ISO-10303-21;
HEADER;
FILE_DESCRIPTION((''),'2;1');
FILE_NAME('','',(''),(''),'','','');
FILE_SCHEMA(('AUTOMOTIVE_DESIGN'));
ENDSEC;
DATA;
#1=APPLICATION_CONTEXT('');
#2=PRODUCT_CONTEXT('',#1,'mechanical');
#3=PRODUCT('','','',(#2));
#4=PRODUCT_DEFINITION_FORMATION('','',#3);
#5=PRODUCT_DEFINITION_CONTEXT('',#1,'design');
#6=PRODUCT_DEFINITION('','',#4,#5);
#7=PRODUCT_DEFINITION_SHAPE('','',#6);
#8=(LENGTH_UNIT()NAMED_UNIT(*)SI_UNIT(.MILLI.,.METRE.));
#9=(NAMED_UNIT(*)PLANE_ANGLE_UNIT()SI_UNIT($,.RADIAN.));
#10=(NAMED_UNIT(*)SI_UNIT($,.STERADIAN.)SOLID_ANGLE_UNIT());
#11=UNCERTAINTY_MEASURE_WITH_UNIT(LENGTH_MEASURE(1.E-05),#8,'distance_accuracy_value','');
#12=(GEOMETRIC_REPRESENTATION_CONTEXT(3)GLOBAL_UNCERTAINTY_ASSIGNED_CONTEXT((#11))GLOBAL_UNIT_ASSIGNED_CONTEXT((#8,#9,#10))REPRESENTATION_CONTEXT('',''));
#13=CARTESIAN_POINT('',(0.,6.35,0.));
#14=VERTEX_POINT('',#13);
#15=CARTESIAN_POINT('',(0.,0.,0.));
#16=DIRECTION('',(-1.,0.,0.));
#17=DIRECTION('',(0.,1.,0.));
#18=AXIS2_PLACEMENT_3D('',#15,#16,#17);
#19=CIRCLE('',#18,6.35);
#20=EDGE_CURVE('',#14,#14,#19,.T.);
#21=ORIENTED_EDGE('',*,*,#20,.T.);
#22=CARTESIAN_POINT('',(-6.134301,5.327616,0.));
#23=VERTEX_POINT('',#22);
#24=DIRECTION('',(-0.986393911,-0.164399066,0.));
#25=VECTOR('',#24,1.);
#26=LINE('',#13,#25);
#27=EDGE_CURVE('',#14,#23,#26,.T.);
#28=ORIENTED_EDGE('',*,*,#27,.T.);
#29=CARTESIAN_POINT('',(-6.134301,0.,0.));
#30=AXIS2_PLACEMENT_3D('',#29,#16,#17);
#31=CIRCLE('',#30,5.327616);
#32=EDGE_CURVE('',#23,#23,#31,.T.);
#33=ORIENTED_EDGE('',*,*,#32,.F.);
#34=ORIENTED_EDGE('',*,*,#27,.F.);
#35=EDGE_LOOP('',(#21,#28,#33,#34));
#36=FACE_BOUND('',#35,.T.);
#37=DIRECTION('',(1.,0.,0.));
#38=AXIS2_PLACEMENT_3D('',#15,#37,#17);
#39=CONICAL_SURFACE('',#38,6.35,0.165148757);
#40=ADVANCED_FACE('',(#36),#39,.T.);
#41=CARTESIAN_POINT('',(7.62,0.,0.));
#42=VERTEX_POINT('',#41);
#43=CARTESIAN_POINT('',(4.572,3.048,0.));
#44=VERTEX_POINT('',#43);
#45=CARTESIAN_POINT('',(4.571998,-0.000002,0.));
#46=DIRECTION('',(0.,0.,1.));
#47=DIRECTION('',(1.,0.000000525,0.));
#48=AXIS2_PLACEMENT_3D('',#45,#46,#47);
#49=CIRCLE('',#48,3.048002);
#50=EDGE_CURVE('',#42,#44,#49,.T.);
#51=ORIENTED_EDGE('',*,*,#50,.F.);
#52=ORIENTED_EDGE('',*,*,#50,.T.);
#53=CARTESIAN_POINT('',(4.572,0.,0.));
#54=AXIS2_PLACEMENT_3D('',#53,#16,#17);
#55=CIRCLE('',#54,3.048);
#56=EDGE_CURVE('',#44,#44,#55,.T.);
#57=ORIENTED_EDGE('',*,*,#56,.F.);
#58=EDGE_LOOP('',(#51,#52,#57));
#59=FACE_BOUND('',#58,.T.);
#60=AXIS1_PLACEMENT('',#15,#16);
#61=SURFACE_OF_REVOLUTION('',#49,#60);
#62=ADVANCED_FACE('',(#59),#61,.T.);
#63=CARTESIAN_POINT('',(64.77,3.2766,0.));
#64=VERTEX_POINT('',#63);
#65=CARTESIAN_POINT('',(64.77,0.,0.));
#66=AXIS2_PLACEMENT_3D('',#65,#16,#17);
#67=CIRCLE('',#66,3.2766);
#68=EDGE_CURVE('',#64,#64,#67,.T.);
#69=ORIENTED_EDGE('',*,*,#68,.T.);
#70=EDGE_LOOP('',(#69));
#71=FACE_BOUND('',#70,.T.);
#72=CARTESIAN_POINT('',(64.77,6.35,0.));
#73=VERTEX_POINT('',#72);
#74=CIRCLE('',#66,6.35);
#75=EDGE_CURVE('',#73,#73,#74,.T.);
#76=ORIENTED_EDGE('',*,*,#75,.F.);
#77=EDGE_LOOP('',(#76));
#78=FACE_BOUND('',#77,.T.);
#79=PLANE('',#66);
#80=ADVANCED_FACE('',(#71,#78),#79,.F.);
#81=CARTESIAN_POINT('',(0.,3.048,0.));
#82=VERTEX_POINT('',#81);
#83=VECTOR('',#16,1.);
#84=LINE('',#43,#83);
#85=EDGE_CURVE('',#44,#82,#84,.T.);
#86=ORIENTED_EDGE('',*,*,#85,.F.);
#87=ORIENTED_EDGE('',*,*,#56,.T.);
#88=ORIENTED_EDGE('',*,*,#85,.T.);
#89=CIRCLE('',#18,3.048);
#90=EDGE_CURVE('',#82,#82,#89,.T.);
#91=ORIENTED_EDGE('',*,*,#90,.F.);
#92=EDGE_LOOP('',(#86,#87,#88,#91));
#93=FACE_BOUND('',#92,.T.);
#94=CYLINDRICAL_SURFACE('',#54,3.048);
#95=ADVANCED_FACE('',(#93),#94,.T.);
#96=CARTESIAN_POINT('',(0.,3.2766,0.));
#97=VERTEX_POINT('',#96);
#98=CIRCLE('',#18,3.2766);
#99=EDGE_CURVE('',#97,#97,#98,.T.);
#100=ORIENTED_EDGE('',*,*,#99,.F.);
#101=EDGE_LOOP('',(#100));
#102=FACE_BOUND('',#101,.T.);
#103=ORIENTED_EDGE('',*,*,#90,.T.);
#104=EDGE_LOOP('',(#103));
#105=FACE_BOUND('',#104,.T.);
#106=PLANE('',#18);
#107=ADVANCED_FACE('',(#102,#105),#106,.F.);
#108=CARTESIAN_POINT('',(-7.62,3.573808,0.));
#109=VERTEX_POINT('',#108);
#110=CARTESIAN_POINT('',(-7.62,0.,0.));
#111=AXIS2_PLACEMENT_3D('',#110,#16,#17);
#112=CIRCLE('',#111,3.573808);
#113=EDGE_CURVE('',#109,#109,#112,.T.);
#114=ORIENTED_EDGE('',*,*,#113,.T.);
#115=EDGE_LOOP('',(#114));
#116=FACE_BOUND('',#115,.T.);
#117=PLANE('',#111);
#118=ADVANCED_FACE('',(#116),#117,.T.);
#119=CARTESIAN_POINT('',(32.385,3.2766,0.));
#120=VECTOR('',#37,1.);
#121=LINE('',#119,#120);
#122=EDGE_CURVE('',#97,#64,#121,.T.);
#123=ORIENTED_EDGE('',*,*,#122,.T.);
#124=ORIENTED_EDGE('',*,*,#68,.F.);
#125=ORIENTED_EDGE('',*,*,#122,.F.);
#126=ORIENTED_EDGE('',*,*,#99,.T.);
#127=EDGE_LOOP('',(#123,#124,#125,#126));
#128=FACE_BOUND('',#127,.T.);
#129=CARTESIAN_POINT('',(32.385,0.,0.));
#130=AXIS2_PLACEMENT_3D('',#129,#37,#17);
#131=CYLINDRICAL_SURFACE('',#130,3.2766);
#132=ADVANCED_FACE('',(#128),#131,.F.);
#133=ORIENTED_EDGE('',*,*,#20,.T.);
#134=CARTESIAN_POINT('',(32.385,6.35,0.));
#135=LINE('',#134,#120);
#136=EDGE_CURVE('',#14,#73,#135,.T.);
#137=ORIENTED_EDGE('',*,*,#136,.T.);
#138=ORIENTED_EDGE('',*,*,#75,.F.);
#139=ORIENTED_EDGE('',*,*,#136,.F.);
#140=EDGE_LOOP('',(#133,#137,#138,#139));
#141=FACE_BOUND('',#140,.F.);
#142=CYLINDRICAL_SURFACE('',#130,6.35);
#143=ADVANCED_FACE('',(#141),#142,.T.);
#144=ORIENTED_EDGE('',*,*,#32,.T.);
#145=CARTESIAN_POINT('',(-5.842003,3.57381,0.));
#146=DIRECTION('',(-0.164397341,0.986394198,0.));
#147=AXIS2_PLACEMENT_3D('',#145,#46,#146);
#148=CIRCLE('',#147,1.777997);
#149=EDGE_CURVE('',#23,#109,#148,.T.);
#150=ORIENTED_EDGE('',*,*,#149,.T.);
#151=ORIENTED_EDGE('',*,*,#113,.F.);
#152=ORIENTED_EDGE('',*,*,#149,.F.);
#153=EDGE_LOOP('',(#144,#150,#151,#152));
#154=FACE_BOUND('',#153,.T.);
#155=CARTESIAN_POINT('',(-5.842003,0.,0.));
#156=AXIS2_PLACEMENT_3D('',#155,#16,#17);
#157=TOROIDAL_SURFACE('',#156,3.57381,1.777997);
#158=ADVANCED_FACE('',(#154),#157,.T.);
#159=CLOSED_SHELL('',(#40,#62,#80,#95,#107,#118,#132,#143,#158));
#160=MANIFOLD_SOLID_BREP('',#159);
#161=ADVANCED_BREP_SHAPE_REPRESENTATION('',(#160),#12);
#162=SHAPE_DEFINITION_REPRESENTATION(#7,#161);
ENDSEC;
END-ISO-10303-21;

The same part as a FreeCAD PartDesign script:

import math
import FreeCAD as App
import Part
import Sketcher
from FreeCAD import Vector
Q = App.Units.Quantity

doc = App.newDocument("Part")
body = doc.addObject("PartDesign::Body", "Body")

# Sketch on XY plane
sketch1 = body.newObject("Sketcher::SketchObject", "Sketch")
sketch1.AttachmentSupport = (doc.getObject("XY_Plane"), [""])
sketch1.MapMode = "FlatFace"
sketch1.addGeometry([
    Part.LineSegment(Vector(0, 6.3, 0), Vector(0, 3.3, 0)),
    Part.LineSegment(Vector(0, 3.3, 0), Vector(64.8, 3.3, 0)),
    Part.LineSegment(Vector(64.8, 3.3, 0), Vector(64.8, 6.3, 0)),
    Part.LineSegment(Vector(64.8, 6.3, 0), Vector(0, 6.3, 0)),
], False)
sketch1.addConstraint([
    Sketcher.Constraint("Coincident", 0, 2, 1, 1),
    Sketcher.Constraint("Coincident", 1, 2, 2, 1),
    Sketcher.Constraint("Coincident", 2, 2, 3, 1),
    Sketcher.Constraint("Coincident", 3, 2, 0, 1),
    Sketcher.Constraint("Vertical", 0),
    Sketcher.Constraint("Horizontal", 1),
    Sketcher.Constraint("Vertical", 2),
    Sketcher.Constraint("Horizontal", 3),
    Sketcher.Constraint("PointOnObject", 0, 2, -2),
    Sketcher.Constraint("DistanceX", 1, 1, 1, 2, Q("2.55 in")),
    Sketcher.Constraint("DistanceY", 0, 2, 0, 1, Q("0.121 in")),
    Sketcher.Constraint("DistanceY", -1, 1, 2, 2, Q("0.25 in")),
])
revolution = body.newObject("PartDesign::Revolution", "Revolution")
revolution.Profile = sketch1
revolution.ReferenceAxis = (sketch1, ["H_Axis"])
revolution.Angle = 360

# Sketch on XY plane
sketch2 = body.newObject("Sketcher::SketchObject", "Sketch001")
sketch2.AttachmentSupport = (doc.getObject("XY_Plane"), [""])
sketch2.MapMode = "FlatFace"
sketch2.addGeometry([
    Part.LineSegment(Vector(4.6, 3, 0), Vector(0, 3, 0)),  # 0
    Part.LineSegment(Vector(0, 3, 0), Vector(0, 6.3, 0)),  # 1
    Part.LineSegment(Vector(0, 6.3, 0), Vector(-6.1, 5.3, 0)),  # 2
    Part.ArcOfCircle(Part.Circle(Vector(-5.8, 3.6, 0), Vector(0, 0, 1), 1.8), math.radians(99), math.radians(180)),  # 3
    Part.LineSegment(Vector(-7.6, 3.6, 0), Vector(-7.6, 0, 0)),  # 4
    Part.LineSegment(Vector(-7.6, 0, 0), Vector(7.6, 0, 0)),  # 5
    Part.ArcOfCircle(Part.Circle(Vector(4.6, 0, 0), Vector(0, 0, 1), 3), math.radians(0), math.radians(90)),  # 6
], False)
sketch2.addConstraint([
    Sketcher.Constraint("Coincident", 0, 2, 1, 1),
    Sketcher.Constraint("Coincident", 1, 2, 2, 1),
    Sketcher.Constraint("Tangent", 2, 2, 3, 1),
    Sketcher.Constraint("Tangent", 3, 2, 4, 1),
    Sketcher.Constraint("Coincident", 4, 2, 5, 1),
    Sketcher.Constraint("Coincident", 5, 2, 6, 1),
    Sketcher.Constraint("Tangent", 6, 2, 0, 1),
    Sketcher.Constraint("Horizontal", 0),
    Sketcher.Constraint("Vertical", 1),
    Sketcher.Constraint("Vertical", 4),
    Sketcher.Constraint("Horizontal", 5),
    Sketcher.Constraint("Symmetric", 4, 2, 5, 2, -1, 1),
    Sketcher.Constraint("PointOnObject", 6, 3, -1),
    Sketcher.Constraint("PointOnObject", 0, 2, -2),
    Sketcher.Constraint("Radius", 3, Q("0.0699999 in")),
    Sketcher.Constraint("Radius", 6, Q("0.1200001 in")),
    Sketcher.Constraint("DistanceX", 5, 1, 5, 2, Q("0.6 in")),
    Sketcher.Constraint("DistanceY", 1, 1, 1, 2, Q("0.13 in")),
    Sketcher.Constraint("DistanceY", 4, 2, 4, 1, Q("3.573808 mm")),
])
revolution2 = body.newObject("PartDesign::Revolution", "Revolution001")
revolution2.Profile = sketch2
revolution2.ReferenceAxis = (sketch2, ["H_Axis"])
revolution2.Angle = 360

doc.recompute()
